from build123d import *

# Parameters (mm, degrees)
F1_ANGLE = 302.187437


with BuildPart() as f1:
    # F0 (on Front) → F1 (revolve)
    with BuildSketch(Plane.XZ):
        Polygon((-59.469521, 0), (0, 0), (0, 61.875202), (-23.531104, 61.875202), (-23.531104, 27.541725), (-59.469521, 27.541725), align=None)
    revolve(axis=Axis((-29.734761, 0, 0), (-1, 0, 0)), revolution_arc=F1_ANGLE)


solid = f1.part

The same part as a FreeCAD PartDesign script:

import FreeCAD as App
import Part
import Sketcher

doc = App.newDocument("Part")
body = doc.addObject("PartDesign::Body", "Body")

# Sketch on XZ plane
sketch1 = body.newObject("Sketcher::SketchObject", "Sketch")
sketch1.AttachmentSupport = (doc.getObject("XZ_Plane"), [""])
sketch1.MapMode = "FlatFace"
sketch1.addGeometry([
    Part.LineSegment(App.Vector(-59.469521, 0, 0), App.Vector(0, 0, 0)),  # 0
    Part.LineSegment(App.Vector(0, 0, 0), App.Vector(0, 61.875202, 0)),  # 1
    Part.LineSegment(App.Vector(0, 61.875202, 0), App.Vector(-23.531104, 61.875202, 0)),  # 2
    Part.LineSegment(App.Vector(-23.531104, 61.875202, 0), App.Vector(-23.531104, 27.541725, 0)),  # 3
    Part.LineSegment(App.Vector(-23.531104, 27.541725, 0), App.Vector(-59.469521, 27.541725, 0)),  # 4
    Part.LineSegment(App.Vector(-59.469521, 27.541725, 0), App.Vector(-59.469521, 0, 0)),  # 5
], False)
sketch1.addConstraint([
    Sketcher.Constraint("Coincident", 0, 2, 1, 1),
    Sketcher.Constraint("Coincident", 1, 2, 2, 1),
    Sketcher.Constraint("Coincident", 2, 2, 3, 1),
    Sketcher.Constraint("Coincident", 3, 2, 4, 1),
    Sketcher.Constraint("Coincident", 4, 2, 5, 1),
    Sketcher.Constraint("Coincident", 5, 2, 0, 1),
    Sketcher.Constraint("Horizontal", 0),
    Sketcher.Constraint("Vertical", 1),
    Sketcher.Constraint("Horizontal", 2),
    Sketcher.Constraint("Vertical", 3),
    Sketcher.Constraint("Horizontal", 4),
    Sketcher.Constraint("Vertical", 5),
    Sketcher.Constraint("Coincident", 0, 2, -1, 1),
    Sketcher.Constraint("DistanceX", 0, 1, 0, 2, 59.469521),
    Sketcher.Constraint("DistanceX", 2, 2, 2, 1, 23.531104),
    Sketcher.Constraint("DistanceY", 1, 1, 1, 2, 61.875202),
    Sketcher.Constraint("DistanceY", 3, 2, 3, 1, 34.333477),
])
revolution = body.newObject("PartDesign::Revolution", "Revolution")
revolution.Profile = sketch1
revolution.ReferenceAxis = (sketch1, ["H_Axis"])
revolution.Angle = 302.187437
revolution.Reversed = True

doc.recompute()
